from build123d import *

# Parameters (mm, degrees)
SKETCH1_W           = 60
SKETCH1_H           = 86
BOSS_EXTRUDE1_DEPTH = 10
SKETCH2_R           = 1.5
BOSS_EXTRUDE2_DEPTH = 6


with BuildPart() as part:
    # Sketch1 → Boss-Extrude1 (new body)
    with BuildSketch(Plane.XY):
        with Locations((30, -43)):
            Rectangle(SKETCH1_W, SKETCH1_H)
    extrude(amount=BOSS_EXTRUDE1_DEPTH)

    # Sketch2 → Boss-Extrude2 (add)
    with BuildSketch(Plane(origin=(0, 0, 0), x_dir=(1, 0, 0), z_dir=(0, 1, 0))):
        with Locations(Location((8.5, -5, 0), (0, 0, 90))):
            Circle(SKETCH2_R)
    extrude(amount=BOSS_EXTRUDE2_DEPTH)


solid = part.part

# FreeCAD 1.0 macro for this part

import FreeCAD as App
import Part
import Sketcher
Q = App.Units.Quantity

doc = App.newDocument("Part")
params = doc.addObject("Spreadsheet::Sheet", "Params")
for row, (alias, value) in enumerate([
    ("sketch1_width", "60 mm"),
    ("sketch1_height", "86 mm"),
    ("pad1_length", "10 mm"),
    ("sketch2_diameter", "3 mm"),
    ("pad2_length", "6 mm"),
], start=1):
    params.set(f"A{row}", alias)
    params.set(f"B{row}", "=" + value)
    params.setAlias(f"B{row}", alias)

body = doc.addObject("PartDesign::Body", "Body")

sketch1 = doc.addObject("Sketcher::SketchObject", "Sketch")
body.addObject(sketch1)
sketch1.AttachmentSupport = (doc.XY_Plane, [""])
sketch1.MapMode = "FlatFace"
sketch1.addGeometry(Part.LineSegment(App.Vector(0, 0, 0), App.Vector(0, -86, 0)), False)
sketch1.addGeometry(Part.LineSegment(App.Vector(0, -86, 0), App.Vector(60, -86, 0)), False)
sketch1.addGeometry(Part.LineSegment(App.Vector(60, -86, 0), App.Vector(60, 0, 0)), False)
sketch1.addGeometry(Part.LineSegment(App.Vector(60, 0, 0), App.Vector(0, 0, 0)), False)
sketch1.addConstraint(Sketcher.Constraint("Coincident", 0, 2, 1, 1))
sketch1.addConstraint(Sketcher.Constraint("Coincident", 1, 2, 2, 1))
sketch1.addConstraint(Sketcher.Constraint("Coincident", 2, 2, 3, 1))
sketch1.addConstraint(Sketcher.Constraint("Coincident", 3, 2, 0, 1))
sketch1.addConstraint(Sketcher.Constraint("Vertical", 0))
sketch1.addConstraint(Sketcher.Constraint("Horizontal", 1))
sketch1.addConstraint(Sketcher.Constraint("Vertical", 2))
sketch1.addConstraint(Sketcher.Constraint("Horizontal", 3))
sketch1.addConstraint(Sketcher.Constraint("Coincident", 3, 2, -1, 1))
sketch1.addConstraint(Sketcher.Constraint("DistanceX", 1, 1, 1, 2, Q("60 mm")))
sketch1.addConstraint(Sketcher.Constraint("DistanceY", 0, 2, 0, 1, Q("86 mm")))
sketch1.setExpression("Constraints[9]", "Params.sketch1_width")
sketch1.setExpression("Constraints[10]", "Params.sketch1_height")
pad1 = doc.addObject("PartDesign::Pad", "Pad")
body.addObject(pad1)
pad1.Profile = sketch1
pad1.setExpression("Length", "Params.pad1_length")

sketch2 = doc.addObject("Sketcher::SketchObject", "Sketch001")
body.addObject(sketch2)
sketch2.AttachmentSupport = (doc.XZ_Plane, [""])
sketch2.MapMode = "FlatFace"
sketch2.addGeometry(Part.Circle(App.Vector(8.5, 5, 0), App.Vector(0, 0, 1), 1.5), False)
sketch2.addConstraint(Sketcher.Constraint("Diameter", 0, Q("3 mm")))
sketch2.addConstraint(Sketcher.Constraint("DistanceY", -1, 1, 0, 3, Q("5 mm")))
sketch2.addConstraint(Sketcher.Constraint("DistanceX", -1, 1, 0, 3, Q("8.5 mm")))
sketch2.setExpression("Constraints[0]", "Params.sketch2_diameter")
pad2 = doc.addObject("PartDesign::Pad", "Pad001")
body.addObject(pad2)
pad2.Profile = sketch2
pad2.setExpression("Length", "Params.pad2_length")
pad2.Reversed = True

doc.recompute()
